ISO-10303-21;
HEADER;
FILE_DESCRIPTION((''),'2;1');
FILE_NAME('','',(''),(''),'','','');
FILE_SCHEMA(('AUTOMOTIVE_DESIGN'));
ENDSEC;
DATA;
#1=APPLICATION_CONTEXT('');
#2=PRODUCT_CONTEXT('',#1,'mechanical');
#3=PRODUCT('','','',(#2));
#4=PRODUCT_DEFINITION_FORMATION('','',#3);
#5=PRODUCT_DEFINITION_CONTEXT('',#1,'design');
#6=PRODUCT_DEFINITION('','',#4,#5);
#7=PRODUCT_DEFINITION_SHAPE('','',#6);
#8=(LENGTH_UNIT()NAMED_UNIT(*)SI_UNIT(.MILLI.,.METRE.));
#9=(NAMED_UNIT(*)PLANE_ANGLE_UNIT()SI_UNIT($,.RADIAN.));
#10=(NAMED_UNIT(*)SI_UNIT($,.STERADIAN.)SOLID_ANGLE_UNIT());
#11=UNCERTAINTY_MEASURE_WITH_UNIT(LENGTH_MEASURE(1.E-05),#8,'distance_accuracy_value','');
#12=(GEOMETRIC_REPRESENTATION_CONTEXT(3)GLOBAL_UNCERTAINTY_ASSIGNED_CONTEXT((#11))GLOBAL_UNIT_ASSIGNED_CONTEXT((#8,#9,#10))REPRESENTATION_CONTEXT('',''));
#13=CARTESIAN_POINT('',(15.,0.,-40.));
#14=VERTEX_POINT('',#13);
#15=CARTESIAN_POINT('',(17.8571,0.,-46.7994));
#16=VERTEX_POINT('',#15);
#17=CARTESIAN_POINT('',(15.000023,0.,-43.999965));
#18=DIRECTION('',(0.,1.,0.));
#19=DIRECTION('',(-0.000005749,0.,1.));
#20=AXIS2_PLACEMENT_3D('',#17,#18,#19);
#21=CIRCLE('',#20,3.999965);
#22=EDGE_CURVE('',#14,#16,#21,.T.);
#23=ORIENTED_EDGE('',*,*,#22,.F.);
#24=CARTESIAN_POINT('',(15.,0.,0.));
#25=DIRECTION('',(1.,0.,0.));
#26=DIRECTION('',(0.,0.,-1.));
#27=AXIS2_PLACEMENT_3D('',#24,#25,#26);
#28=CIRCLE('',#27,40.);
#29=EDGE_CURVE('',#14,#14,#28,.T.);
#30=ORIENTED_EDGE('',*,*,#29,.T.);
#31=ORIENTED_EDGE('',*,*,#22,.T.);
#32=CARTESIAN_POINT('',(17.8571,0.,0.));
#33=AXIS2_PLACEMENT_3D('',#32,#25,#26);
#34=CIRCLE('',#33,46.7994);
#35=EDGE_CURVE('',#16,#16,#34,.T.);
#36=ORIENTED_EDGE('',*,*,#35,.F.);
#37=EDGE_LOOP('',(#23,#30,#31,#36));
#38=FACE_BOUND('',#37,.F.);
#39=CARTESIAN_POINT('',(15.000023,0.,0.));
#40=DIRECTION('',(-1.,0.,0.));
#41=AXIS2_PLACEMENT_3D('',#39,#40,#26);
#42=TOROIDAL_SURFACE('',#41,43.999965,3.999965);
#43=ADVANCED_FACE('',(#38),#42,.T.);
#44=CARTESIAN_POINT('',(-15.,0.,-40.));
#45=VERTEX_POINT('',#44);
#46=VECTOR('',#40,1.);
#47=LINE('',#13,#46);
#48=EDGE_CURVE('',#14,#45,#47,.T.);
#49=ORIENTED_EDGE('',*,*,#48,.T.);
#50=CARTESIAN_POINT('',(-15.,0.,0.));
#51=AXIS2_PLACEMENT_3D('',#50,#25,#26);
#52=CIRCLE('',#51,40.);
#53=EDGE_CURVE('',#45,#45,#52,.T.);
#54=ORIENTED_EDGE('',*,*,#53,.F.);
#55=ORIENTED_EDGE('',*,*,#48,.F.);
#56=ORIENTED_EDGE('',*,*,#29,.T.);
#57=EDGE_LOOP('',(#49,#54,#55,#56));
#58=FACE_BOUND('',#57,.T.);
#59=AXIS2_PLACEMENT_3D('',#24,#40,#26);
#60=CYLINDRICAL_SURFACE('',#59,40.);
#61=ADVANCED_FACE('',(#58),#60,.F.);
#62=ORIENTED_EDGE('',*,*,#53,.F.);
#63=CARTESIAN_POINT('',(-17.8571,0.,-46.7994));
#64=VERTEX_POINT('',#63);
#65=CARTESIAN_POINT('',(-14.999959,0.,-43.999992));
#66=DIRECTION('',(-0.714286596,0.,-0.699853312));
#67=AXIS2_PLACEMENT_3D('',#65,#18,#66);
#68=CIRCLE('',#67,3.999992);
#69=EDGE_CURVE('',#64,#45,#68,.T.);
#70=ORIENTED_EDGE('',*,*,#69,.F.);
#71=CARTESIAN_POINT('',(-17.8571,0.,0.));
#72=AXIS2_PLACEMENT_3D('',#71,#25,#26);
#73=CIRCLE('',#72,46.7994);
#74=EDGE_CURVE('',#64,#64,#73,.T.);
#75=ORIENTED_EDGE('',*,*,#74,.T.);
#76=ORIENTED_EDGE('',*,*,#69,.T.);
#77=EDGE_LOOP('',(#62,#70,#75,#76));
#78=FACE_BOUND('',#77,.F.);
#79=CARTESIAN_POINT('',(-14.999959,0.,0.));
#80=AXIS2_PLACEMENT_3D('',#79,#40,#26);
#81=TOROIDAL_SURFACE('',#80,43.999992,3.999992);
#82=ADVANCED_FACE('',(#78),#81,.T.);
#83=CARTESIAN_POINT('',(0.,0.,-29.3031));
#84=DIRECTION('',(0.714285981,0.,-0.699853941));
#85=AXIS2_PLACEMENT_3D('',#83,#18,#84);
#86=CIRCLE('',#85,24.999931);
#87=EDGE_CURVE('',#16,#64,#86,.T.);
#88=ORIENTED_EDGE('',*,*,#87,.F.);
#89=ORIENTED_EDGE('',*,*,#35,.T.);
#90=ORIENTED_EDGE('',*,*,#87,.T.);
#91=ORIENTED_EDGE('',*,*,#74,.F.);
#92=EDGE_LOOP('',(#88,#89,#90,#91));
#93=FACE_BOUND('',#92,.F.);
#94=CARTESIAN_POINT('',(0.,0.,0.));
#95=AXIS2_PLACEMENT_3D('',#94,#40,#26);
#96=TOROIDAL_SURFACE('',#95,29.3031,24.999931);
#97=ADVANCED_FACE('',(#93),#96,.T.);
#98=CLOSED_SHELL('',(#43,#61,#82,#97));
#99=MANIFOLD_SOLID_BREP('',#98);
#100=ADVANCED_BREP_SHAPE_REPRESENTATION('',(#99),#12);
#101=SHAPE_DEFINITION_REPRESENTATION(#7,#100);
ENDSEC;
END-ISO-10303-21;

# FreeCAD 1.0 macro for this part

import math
import FreeCAD as App
import Part
import Sketcher

doc = App.newDocument("Part")
body = doc.addObject("PartDesign::Body", "Body")

sketch1 = body.newObject("Sketcher::SketchObject", "Sketch")
sketch1.AttachmentSupport = (doc.getObject("XZ_Plane"), [""])
sketch1.MapMode = "FlatFace"
sketch1.addGeometry(Part.LineSegment(App.Vector(-15, -40, 0), App.Vector(15, -40, 0)), False)
sketch1.addGeometry(Part.ArcOfCircle(Part.Circle(App.Vector(15, -44, 0), App.Vector(0, 0, 1), 4), math.radians(-44), math.radians(90)), False)
sketch1.addGeometry(Part.ArcOfCircle(Part.Circle(App.Vector(0, -29.3, 0), App.Vector(0, 0, 1), 25), math.radians(-136), math.radians(-44)), False)
sketch1.addGeometry(Part.ArcOfCircle(Part.Circle(App.Vector(-15, -44, 0), App.Vector(0, 0, 1), 4), math.radians(90), math.radians(224)), False)
sketch1.addConstraint(Sketcher.Constraint("Tangent", 0, 2, 1, 2))
sketch1.addConstraint(Sketcher.Constraint("Tangent", 1, 1, 2, 2))
sketch1.addConstraint(Sketcher.Constraint("Tangent", 2, 1, 3, 2))
sketch1.addConstraint(Sketcher.Constraint("Tangent", 3, 1, 0, 1))
sketch1.addConstraint(Sketcher.Constraint("Horizontal", 0))
sketch1.addConstraint(Sketcher.Constraint("Equal", 1, 3))
sketch1.addConstraint(Sketcher.Constraint("PointOnObject", 2, 3, -2))
sketch1.addConstraint(Sketcher.Constraint("Radius", 1, 4.0))
sketch1.addConstraint(Sketcher.Constraint("Radius", 2, 25.0))
sketch1.addConstraint(Sketcher.Constraint("DistanceX", 0, 1, 0, 2, 30.0))
sketch1.addConstraint(Sketcher.Constraint("DistanceY", 1, 3, -1, 1, 44.0))
revolution = body.newObject("PartDesign::Revolution", "Revolution")
revolution.Profile = sketch1
revolution.ReferenceAxis = (sketch1, ["H_Axis"])
revolution.Angle = 360

doc.recompute()
